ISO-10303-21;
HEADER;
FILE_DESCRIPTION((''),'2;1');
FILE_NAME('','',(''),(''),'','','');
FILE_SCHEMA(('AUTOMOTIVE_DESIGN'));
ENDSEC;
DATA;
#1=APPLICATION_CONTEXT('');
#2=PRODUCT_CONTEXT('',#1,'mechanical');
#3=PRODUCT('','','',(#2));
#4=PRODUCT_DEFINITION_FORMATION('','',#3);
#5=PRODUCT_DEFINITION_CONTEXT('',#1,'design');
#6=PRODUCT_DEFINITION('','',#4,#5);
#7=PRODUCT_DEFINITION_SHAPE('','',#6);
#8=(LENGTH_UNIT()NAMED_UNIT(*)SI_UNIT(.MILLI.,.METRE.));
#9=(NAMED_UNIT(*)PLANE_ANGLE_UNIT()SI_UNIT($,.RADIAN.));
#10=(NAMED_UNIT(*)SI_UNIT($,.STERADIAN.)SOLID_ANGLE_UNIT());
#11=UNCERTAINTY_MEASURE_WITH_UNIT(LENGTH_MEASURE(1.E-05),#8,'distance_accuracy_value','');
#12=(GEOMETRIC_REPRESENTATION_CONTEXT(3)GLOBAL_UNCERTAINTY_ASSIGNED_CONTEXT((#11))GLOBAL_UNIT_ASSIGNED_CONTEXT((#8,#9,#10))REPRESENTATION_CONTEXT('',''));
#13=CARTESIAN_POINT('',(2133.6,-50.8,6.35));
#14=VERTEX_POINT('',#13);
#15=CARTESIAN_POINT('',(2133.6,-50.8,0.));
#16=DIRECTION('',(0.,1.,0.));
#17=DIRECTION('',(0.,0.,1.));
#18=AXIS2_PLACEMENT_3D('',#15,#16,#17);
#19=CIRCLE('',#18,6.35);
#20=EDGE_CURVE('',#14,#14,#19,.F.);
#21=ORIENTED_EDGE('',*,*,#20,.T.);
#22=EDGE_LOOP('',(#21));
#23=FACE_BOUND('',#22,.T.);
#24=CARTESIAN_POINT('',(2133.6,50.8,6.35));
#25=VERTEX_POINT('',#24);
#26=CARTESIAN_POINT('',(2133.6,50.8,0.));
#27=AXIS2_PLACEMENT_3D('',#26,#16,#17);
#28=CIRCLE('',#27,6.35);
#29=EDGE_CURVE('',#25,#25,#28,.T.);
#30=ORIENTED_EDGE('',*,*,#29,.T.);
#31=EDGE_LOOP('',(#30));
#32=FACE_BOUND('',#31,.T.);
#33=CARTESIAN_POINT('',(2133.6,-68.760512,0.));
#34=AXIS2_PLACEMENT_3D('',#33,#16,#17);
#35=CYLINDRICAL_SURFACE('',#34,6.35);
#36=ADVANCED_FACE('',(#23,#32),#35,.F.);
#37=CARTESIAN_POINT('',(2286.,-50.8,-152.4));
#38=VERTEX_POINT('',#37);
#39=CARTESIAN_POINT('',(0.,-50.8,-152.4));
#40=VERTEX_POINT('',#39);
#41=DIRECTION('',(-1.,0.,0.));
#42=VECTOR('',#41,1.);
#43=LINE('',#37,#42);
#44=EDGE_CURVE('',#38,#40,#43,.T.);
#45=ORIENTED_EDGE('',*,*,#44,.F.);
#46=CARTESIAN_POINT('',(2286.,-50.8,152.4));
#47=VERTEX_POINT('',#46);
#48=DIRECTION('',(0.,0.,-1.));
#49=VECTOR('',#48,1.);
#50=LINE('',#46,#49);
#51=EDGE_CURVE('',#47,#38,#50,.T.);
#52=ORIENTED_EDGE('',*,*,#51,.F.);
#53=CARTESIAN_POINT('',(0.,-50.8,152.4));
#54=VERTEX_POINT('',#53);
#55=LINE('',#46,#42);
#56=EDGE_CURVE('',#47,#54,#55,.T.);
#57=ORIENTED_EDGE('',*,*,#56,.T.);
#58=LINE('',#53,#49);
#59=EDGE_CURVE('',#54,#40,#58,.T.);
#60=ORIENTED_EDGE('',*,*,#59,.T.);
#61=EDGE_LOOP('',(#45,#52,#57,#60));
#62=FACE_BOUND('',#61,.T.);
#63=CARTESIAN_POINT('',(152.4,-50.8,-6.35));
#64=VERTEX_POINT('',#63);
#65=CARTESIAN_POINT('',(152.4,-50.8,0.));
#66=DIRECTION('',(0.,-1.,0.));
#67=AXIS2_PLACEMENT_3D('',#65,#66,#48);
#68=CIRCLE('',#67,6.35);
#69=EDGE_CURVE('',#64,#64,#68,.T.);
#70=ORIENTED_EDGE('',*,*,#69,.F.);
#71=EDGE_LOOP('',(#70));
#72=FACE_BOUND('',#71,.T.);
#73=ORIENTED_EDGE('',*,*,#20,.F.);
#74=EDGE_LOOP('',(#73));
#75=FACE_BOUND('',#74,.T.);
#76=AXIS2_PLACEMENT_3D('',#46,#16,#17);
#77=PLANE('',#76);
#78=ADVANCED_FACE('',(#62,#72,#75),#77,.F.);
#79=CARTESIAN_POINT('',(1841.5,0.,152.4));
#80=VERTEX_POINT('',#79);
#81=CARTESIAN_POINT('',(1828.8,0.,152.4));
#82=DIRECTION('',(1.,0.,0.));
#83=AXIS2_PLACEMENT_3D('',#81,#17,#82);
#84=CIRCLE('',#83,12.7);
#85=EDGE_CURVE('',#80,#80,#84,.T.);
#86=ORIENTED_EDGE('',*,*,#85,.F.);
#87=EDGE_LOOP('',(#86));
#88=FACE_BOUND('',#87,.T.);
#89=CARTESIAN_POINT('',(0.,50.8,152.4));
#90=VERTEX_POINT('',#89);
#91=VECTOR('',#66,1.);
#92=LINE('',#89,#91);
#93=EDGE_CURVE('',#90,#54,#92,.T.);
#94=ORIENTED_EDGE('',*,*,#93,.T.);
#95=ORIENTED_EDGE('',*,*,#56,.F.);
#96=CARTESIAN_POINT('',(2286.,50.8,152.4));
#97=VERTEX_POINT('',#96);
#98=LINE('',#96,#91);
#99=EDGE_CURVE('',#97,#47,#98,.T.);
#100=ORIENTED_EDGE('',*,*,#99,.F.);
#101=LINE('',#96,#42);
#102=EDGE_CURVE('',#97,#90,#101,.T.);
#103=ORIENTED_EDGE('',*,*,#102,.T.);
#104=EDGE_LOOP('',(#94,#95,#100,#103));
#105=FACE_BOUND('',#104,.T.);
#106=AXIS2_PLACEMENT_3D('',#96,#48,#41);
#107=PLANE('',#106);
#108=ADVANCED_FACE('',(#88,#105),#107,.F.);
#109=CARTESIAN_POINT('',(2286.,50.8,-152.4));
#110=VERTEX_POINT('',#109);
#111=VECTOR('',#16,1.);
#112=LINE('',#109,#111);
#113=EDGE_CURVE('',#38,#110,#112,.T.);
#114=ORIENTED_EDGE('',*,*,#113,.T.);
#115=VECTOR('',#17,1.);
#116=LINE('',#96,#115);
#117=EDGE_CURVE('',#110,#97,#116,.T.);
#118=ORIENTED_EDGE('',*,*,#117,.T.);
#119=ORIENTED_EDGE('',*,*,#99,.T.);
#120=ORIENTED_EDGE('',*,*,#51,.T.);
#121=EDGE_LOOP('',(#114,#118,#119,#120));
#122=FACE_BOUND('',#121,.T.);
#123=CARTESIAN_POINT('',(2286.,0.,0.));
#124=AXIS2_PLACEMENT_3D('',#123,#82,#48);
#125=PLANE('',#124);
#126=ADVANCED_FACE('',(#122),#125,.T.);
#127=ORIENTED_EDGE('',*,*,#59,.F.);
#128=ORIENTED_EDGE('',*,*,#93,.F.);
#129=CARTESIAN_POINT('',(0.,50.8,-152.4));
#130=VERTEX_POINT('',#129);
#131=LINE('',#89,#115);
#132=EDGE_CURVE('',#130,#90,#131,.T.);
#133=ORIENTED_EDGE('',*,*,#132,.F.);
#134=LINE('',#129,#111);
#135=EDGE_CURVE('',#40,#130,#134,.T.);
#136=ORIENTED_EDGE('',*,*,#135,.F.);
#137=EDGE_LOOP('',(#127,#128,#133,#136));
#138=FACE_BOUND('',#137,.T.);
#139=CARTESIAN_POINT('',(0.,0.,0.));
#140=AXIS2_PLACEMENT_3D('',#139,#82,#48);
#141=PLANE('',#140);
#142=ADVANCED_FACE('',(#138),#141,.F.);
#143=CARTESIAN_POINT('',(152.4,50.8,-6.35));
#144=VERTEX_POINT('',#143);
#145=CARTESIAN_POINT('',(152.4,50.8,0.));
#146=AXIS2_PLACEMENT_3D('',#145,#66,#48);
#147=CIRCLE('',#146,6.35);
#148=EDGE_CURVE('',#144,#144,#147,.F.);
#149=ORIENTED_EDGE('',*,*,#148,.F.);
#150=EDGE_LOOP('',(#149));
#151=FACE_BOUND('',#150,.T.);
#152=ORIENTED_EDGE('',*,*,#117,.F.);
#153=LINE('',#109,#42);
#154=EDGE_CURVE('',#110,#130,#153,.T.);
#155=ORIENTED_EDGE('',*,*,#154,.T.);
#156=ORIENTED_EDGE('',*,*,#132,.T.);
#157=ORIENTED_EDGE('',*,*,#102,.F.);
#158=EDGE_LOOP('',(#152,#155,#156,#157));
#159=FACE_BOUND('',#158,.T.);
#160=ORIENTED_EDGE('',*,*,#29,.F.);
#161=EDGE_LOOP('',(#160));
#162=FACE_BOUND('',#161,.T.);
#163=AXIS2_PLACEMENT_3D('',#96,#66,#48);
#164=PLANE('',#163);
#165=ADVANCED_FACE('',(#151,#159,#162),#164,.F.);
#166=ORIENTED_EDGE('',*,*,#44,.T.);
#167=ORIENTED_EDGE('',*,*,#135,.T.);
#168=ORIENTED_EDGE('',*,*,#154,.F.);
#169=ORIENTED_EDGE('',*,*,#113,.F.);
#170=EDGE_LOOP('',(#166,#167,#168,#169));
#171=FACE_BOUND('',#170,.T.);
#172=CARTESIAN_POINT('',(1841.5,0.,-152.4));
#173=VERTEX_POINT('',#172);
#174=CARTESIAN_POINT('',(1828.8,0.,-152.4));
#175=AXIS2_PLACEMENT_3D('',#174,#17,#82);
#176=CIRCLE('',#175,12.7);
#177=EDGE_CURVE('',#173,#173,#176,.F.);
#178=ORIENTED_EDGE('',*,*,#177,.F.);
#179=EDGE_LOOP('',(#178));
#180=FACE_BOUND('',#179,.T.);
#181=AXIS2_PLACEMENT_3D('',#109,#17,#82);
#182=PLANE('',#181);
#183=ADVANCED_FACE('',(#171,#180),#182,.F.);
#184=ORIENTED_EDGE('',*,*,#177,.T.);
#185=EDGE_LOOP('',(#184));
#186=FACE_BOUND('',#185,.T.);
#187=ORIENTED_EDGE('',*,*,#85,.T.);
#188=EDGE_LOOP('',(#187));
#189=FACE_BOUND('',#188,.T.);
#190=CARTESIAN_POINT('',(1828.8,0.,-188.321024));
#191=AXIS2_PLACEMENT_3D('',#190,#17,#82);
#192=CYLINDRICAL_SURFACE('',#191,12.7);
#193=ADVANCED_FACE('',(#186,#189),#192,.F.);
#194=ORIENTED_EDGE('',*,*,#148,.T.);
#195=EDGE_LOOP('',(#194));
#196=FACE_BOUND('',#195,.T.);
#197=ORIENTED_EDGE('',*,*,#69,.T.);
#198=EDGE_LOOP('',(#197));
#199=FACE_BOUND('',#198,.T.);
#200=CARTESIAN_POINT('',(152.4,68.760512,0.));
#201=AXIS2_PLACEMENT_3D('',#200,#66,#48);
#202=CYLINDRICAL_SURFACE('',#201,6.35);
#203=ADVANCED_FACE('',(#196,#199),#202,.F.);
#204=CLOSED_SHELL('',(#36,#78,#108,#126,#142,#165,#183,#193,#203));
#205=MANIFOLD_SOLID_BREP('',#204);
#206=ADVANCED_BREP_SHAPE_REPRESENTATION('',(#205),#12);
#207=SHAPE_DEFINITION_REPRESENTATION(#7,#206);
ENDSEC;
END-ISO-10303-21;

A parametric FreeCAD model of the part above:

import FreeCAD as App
import Part
import Sketcher
from FreeCAD import Vector
Q = App.Units.Quantity

doc = App.newDocument("Part")
params = doc.addObject("Spreadsheet::Sheet", "Params")
for row, (alias, value) in enumerate([
    ("sketch1_width", "4 in"),
    ("sketch1_height", "12 in"),
    ("pad1_length", "90 in"),
    ("sketch2_diameter", "1 in"),
    ("pocket1_length", "12 in"),
    ("sketch3_diameter", "0.5 in"),
    ("pocket2_length", "4 in"),
    ("sketch4_diameter", "0.5 in"),
    ("pocket3_length", "4 in"),
], start=1):
    params.set(f"A{row}", alias)
    params.set(f"B{row}", "=" + value)
    params.setAlias(f"B{row}", alias)

body = doc.addObject("PartDesign::Body", "Body")

sketch1 = body.newObject("Sketcher::SketchObject", "Sketch")
sketch1.AttachmentSupport = (doc.getObject("YZ_Plane"), [""])
sketch1.MapMode = "FlatFace"
sketch1.addGeometry(Part.LineSegment(Vector(51, 152, 0), Vector(-51, 152, 0)), False)
sketch1.addGeometry(Part.LineSegment(Vector(-51, 152, 0), Vector(-51, -152, 0)), False)
sketch1.addGeometry(Part.LineSegment(Vector(-51, -152, 0), Vector(51, -152, 0)), False)
sketch1.addGeometry(Part.LineSegment(Vector(51, -152, 0), Vector(51, 152, 0)), False)
sketch1.addConstraint(Sketcher.Constraint("Coincident", 0, 2, 1, 1))
sketch1.addConstraint(Sketcher.Constraint("Coincident", 1, 2, 2, 1))
sketch1.addConstraint(Sketcher.Constraint("Coincident", 2, 2, 3, 1))
sketch1.addConstraint(Sketcher.Constraint("Coincident", 3, 2, 0, 1))
sketch1.addConstraint(Sketcher.Constraint("Horizontal", 0))
sketch1.addConstraint(Sketcher.Constraint("Vertical", 1))
sketch1.addConstraint(Sketcher.Constraint("Horizontal", 2))
sketch1.addConstraint(Sketcher.Constraint("Vertical", 3))
sketch1.addConstraint(Sketcher.Constraint("Symmetric", 0, 2, 2, 2, -1, 1))
sketch1.addConstraint(Sketcher.Constraint("DistanceX", 0, 2, 0, 1, Q("4 in")))
sketch1.addConstraint(Sketcher.Constraint("DistanceY", 1, 2, 1, 1, Q("12 in")))
sketch1.setExpression("Constraints[9]", "Params.sketch1_width")
sketch1.setExpression("Constraints[10]", "Params.sketch1_height")
pad1 = body.newObject("PartDesign::Pad", "Pad")
pad1.Profile = sketch1
pad1.setExpression("Length", "Params.pad1_length")

sketch2 = body.newObject("Sketcher::SketchObject", "Sketch001")
sketch2.AttachmentSupport = (doc.getObject("XY_Plane"), [""])
sketch2.MapMode = "FlatFace"
sketch2.AttachmentOffset = App.Placement(Vector(0, 0, 6 * 25.4), App.Rotation())
sketch2.addGeometry(Part.Circle(Vector(1829, 0, 0), Vector(0, 0, 1), 13), False)
sketch2.addConstraint(Sketcher.Constraint("PointOnObject", 0, 3, -1))
sketch2.addConstraint(Sketcher.Constraint("Diameter", 0, Q("1 in")))
sketch2.addConstraint(Sketcher.Constraint("DistanceX", -1, 1, 0, 3, Q("72 in")))
sketch2.setExpression("Constraints[1]", "Params.sketch2_diameter")
pocket1 = body.newObject("PartDesign::Pocket", "Pocket")
pocket1.Profile = sketch2
pocket1.setExpression("Length", "Params.pocket1_length")

sketch3 = body.newObject("Sketcher::SketchObject", "Sketch002")
sketch3.AttachmentSupport = (doc.getObject("XZ_Plane"), [""])
sketch3.MapMode = "FlatFace"
sketch3.AttachmentOffset = App.Placement(Vector(0, 0, -2 * 25.4), App.Rotation())
sketch3.addGeometry(Part.Circle(Vector(2134, 0, 0), Vector(0, 0, 1), 6), False)
sketch3.addConstraint(Sketcher.Constraint("PointOnObject", 0, 3, -1))
sketch3.addConstraint(Sketcher.Constraint("Diameter", 0, Q("0.5 in")))
sketch3.addConstraint(Sketcher.Constraint("DistanceX", -1, 1, 0, 3, Q("84 in")))
sketch3.setExpression("Constraints[1]", "Params.sketch3_diameter")
pocket2 = body.newObject("PartDesign::Pocket", "Pocket001")
pocket2.Profile = sketch3
pocket2.setExpression("Length", "Params.pocket2_length")
pocket2.Reversed = True

sketch4 = body.newObject("Sketcher::SketchObject", "Sketch003")
sketch4.AttachmentSupport = (doc.getObject("XZ_Plane"), [""])
sketch4.MapMode = "FlatFace"
sketch4.AttachmentOffset = App.Placement(Vector(0, 0, 2 * 25.4), App.Rotation())
sketch4.addGeometry(Part.Circle(Vector(152, 0, 0), Vector(0, 0, 1), 6), False)
sketch4.addConstraint(Sketcher.Constraint("PointOnObject", 0, 3, -1))
sketch4.addConstraint(Sketcher.Constraint("Diameter", 0, Q("0.5 in")))
sketch4.addConstraint(Sketcher.Constraint("DistanceX", -1, 1, 0, 3, Q("6 in")))
sketch4.setExpression("Constraints[1]", "Params.sketch4_diameter")
pocket3 = body.newObject("PartDesign::Pocket", "Pocket002")
pocket3.Profile = sketch4
pocket3.setExpression("Length", "Params.pocket3_length")

doc.recompute()
